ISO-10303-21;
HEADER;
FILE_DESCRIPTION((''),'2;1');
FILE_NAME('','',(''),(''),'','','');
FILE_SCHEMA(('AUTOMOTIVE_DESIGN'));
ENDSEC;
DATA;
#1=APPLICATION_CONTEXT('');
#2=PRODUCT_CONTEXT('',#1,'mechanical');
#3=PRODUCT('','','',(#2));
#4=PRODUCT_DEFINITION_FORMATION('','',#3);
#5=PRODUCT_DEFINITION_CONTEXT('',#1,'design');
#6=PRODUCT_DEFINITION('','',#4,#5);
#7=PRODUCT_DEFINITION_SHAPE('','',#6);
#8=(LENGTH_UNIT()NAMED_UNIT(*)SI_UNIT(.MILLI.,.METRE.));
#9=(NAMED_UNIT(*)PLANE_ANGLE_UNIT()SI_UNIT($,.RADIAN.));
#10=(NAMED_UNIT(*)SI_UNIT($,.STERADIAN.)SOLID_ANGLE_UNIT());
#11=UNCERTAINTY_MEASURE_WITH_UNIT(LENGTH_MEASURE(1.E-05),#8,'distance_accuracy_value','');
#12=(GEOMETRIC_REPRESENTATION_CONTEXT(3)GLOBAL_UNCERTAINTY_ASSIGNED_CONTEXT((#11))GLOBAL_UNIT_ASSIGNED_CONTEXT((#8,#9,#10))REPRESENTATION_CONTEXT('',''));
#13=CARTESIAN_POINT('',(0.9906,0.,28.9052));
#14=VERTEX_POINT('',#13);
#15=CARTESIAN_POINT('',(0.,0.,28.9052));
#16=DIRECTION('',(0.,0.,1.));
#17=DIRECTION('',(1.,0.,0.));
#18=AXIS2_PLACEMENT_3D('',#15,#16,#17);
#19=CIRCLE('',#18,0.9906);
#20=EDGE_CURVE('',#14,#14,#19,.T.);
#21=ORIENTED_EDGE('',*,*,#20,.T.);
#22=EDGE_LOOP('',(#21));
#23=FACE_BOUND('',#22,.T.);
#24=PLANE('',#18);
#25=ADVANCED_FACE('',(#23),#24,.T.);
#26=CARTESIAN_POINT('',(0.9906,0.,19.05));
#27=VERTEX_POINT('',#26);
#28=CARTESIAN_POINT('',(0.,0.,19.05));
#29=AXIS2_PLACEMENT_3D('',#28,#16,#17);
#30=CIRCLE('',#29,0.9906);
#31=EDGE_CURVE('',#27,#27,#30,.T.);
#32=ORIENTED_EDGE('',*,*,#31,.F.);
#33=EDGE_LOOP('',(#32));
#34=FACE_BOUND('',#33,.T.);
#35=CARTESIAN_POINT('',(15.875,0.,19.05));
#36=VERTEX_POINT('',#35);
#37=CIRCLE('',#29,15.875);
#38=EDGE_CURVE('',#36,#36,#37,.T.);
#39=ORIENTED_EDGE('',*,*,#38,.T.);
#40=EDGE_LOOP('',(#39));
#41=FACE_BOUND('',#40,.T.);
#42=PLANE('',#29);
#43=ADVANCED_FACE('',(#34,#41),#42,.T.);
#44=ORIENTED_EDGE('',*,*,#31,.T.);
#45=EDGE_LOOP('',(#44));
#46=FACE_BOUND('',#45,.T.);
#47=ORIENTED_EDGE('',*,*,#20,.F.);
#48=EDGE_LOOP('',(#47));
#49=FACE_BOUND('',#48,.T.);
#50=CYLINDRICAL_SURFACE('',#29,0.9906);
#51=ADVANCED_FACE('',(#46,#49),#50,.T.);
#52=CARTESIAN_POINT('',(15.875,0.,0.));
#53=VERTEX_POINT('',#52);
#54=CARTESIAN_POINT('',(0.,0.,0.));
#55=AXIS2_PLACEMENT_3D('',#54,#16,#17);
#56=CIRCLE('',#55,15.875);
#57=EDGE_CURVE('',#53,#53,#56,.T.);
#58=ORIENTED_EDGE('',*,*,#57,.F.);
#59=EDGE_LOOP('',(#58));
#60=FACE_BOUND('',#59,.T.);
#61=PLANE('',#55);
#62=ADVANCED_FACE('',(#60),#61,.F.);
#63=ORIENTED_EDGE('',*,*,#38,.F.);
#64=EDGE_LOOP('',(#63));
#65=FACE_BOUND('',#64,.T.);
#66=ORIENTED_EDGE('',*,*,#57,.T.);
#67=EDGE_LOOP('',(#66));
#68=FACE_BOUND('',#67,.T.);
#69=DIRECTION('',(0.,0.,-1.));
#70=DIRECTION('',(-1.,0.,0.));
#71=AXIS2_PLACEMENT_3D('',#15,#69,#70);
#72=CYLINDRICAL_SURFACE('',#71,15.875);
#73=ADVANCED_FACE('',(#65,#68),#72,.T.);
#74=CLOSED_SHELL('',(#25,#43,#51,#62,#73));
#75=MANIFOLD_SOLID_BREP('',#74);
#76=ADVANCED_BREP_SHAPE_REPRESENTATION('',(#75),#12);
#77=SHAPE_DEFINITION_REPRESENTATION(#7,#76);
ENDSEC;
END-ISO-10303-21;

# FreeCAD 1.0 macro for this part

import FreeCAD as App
import Part
import Sketcher
Q = App.Units.Quantity


def add_polygon(sketch, points):
    """Adds a closed chain of lines whose ends are joined by coincident constraints."""
    first, n = sketch.GeometryCount, len(points)
    for a, b in zip(points, points[1:] + points[:1]):
        sketch.addGeometry(Part.LineSegment(App.Vector(*a, 0), App.Vector(*b, 0)), False)
    for i in range(n):
        sketch.addConstraint(Sketcher.Constraint("Coincident", first + i, 2, first + (i + 1) % n, 1))

doc = App.newDocument("Part")
body = doc.addObject("PartDesign::Body", "Body")

# Sketch on XY plane
sketch1 = body.newObject("Sketcher::SketchObject", "Sketch")
sketch1.AttachmentSupport = (doc.getObject("XY_Plane"), [""])
sketch1.MapMode = "FlatFace"
sketch1.addGeometry(Part.Circle(App.Vector(0, 0, 0), App.Vector(0, 0, 1), 16), False)
sketch1.addConstraint([
    Sketcher.Constraint("Coincident", 0, 3, -1, 1),
    Sketcher.Constraint("Diameter", 0, Q("1.25 in")),
])
pad1 = body.newObject("PartDesign::Pad", "Pad")
pad1.Profile = sketch1
pad1.Length = Q("1.138 in")

# Sketch on XY plane
sketch2 = body.newObject("Sketcher::SketchObject", "Sketch001")
sketch2.AttachmentSupport = (doc.getObject("XY_Plane"), [""])
sketch2.MapMode = "FlatFace"
sketch2.AttachmentOffset = App.Placement(App.Vector(0, 0, 1.138 * 25.4), App.Rotation())
add_polygon(sketch2, [(-22.2, 22.2), (-22.2, -22.2), (22.2, -22.2), (22.2, 22.2)])  # lines 0-3
sketch2.addGeometry(Part.Circle(App.Vector(0, 0, 0), App.Vector(0, 0, 1), 1), False)  # 4
sketch2.addConstraint([
    Sketcher.Constraint("Vertical", 0),
    Sketcher.Constraint("Horizontal", 1),
    Sketcher.Constraint("Vertical", 2),
    Sketcher.Constraint("Horizontal", 3),
    Sketcher.Constraint("Coincident", 4, 3, -1, 1),
    Sketcher.Constraint("Symmetric", 0, 2, 2, 2, -1, 1),
    Sketcher.Constraint("Equal", 3, 0),
    Sketcher.Constraint("Diameter", 4, Q("0.078 in")),
    Sketcher.Constraint("DistanceX", 1, 1, 1, 2, 44.43),
])
pocket1 = body.newObject("PartDesign::Pocket", "Pocket")
pocket1.Profile = sketch2
pocket1.Length = Q("0.388 in")

doc.recompute()
